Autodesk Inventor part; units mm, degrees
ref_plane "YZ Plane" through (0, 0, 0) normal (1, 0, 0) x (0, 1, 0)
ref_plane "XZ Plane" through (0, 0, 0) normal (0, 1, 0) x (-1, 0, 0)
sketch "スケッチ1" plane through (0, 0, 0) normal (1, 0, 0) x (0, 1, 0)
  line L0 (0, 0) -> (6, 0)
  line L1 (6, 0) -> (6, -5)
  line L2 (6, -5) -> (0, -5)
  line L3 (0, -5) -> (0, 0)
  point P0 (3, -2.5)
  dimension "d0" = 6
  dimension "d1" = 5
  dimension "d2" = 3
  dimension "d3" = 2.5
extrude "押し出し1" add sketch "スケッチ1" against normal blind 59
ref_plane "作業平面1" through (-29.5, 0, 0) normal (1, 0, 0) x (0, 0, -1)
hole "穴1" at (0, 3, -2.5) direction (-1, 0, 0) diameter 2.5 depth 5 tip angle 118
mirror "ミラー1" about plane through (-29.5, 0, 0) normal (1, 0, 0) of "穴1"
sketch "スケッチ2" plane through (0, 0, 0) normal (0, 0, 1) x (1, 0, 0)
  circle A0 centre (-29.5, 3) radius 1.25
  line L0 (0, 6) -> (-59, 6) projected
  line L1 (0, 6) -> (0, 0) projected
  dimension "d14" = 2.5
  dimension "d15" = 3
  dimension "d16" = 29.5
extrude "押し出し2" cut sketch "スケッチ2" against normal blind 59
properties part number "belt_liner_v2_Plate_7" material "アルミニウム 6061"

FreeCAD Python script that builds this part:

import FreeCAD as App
import Part
import Sketcher


def add_polygon(sketch, points):
    """Adds a closed chain of lines whose ends are joined by coincident constraints."""
    first, n = sketch.GeometryCount, len(points)
    for a, b in zip(points, points[1:] + points[:1]):
        sketch.addGeometry(Part.LineSegment(App.Vector(*a, 0), App.Vector(*b, 0)), False)
    for i in range(n):
        sketch.addConstraint(Sketcher.Constraint("Coincident", first + i, 2, first + (i + 1) % n, 1))

doc = App.newDocument("Part")
params = doc.addObject("Spreadsheet::Sheet", "Params")
for row, (alias, value) in enumerate([
    ("sketch1_width", "6 mm"),
    ("sketch1_height", "5 mm"),
    ("pad1_length", "59 mm"),
    ("sketch2_diameter", "2.5 mm"),
    ("hole_diameter", "2.5 mm"),
    ("hole_depth", "5 mm"),
    ("sketch3_diameter", "2.5 mm"),
    ("pocket1_length", "59 mm"),
], start=1):
    params.set(f"A{row}", alias)
    params.set(f"B{row}", "=" + value)
    params.setAlias(f"B{row}", alias)

body = doc.addObject("PartDesign::Body", "Body")

# Sketch on YZ plane
sketch1 = doc.addObject("Sketcher::SketchObject", "Sketch")
body.addObject(sketch1)
sketch1.AttachmentSupport = (doc.YZ_Plane, [""])
sketch1.MapMode = "FlatFace"
add_polygon(sketch1, [(6, 0), (0, 0), (0, -5), (6, -5)])  # lines 0-3
sketch1.addConstraint([
    Sketcher.Constraint("Horizontal", 0),
    Sketcher.Constraint("Vertical", 1),
    Sketcher.Constraint("Horizontal", 2),
    Sketcher.Constraint("Vertical", 3),
    Sketcher.Constraint("Coincident", 0, 2, -1, 1),
    Sketcher.Constraint("DistanceX", 0, 2, 0, 1, 6.0),
    Sketcher.Constraint("DistanceY", 1, 2, 1, 1, 5.0),
])
sketch1.setExpression("Constraints[9]", "Params.sketch1_width")
sketch1.setExpression("Constraints[10]", "Params.sketch1_height")
pad1 = doc.addObject("PartDesign::Pad", "Pad")
body.addObject(pad1)
pad1.Profile = sketch1
pad1.setExpression("Length", "Params.pad1_length")
pad1.Reversed = True

# Sketch on YZ plane
sketch2 = doc.addObject("Sketcher::SketchObject", "Sketch001")
body.addObject(sketch2)
sketch2.AttachmentSupport = (doc.YZ_Plane, [""])
sketch2.MapMode = "FlatFace"
sketch2.addGeometry(Part.Circle(App.Vector(3, -2.5, 0), App.Vector(0, 0, 1), 1.2), False)
sketch2.addConstraint([
    Sketcher.Constraint("Diameter", 0, 2.5),
    Sketcher.Constraint("DistanceX", -1, 1, 0, 3, 3.0),
    Sketcher.Constraint("DistanceY", 0, 3, -1, 1, 2.5),
])
sketch2.setExpression("Constraints[0]", "Params.sketch2_diameter")
doc.recompute()
hole = doc.addObject("PartDesign::Hole", "Hole")
body.addObject(hole)
hole.Profile = sketch2
hole.ThreadType = "None"
hole.setExpression("Diameter", "Params.hole_diameter")
hole.DepthType = "Dimension"
hole.setExpression("Depth", "Params.hole_depth")
hole.DrillPoint = "Angled"
hole.DrillPointAngle = 118
doc.recompute()

datumplane = doc.addObject("PartDesign::Plane", "DatumPlane")
body.addObject(datumplane)
datumplane.AttachmentSupport = (doc.YZ_Plane, [""])
datumplane.MapMode = "FlatFace"
datumplane.AttachmentOffset = App.Placement(App.Vector(0, 0, -29.5), App.Rotation())
mirrored = doc.addObject("PartDesign::Mirrored", "Mirrored")
body.addObject(mirrored)
mirrored.Originals = [hole]
mirrored.MirrorPlane = (datumplane, [""])
body.Tip = mirrored

# Sketch on XY plane
sketch3 = doc.addObject("Sketcher::SketchObject", "Sketch002")
body.addObject(sketch3)
sketch3.AttachmentSupport = (doc.XY_Plane, [""])
sketch3.MapMode = "FlatFace"
sketch3.addGeometry(Part.Circle(App.Vector(-29.5, 3, 0), App.Vector(0, 0, 1), 1.2), False)
sketch3.addConstraint([
    Sketcher.Constraint("Diameter", 0, 2.5),
    Sketcher.Constraint("DistanceY", -1, 1, 0, 3, 3.0),
    Sketcher.Constraint("DistanceX", 0, 3, -1, 1, 29.5),
])
sketch3.setExpression("Constraints[0]", "Params.sketch3_diameter")
pocket1 = doc.addObject("PartDesign::Pocket", "Pocket")
body.addObject(pocket1)
pocket1.Profile = sketch3
pocket1.setExpression("Length", "Params.pocket1_length")

doc.recompute()
